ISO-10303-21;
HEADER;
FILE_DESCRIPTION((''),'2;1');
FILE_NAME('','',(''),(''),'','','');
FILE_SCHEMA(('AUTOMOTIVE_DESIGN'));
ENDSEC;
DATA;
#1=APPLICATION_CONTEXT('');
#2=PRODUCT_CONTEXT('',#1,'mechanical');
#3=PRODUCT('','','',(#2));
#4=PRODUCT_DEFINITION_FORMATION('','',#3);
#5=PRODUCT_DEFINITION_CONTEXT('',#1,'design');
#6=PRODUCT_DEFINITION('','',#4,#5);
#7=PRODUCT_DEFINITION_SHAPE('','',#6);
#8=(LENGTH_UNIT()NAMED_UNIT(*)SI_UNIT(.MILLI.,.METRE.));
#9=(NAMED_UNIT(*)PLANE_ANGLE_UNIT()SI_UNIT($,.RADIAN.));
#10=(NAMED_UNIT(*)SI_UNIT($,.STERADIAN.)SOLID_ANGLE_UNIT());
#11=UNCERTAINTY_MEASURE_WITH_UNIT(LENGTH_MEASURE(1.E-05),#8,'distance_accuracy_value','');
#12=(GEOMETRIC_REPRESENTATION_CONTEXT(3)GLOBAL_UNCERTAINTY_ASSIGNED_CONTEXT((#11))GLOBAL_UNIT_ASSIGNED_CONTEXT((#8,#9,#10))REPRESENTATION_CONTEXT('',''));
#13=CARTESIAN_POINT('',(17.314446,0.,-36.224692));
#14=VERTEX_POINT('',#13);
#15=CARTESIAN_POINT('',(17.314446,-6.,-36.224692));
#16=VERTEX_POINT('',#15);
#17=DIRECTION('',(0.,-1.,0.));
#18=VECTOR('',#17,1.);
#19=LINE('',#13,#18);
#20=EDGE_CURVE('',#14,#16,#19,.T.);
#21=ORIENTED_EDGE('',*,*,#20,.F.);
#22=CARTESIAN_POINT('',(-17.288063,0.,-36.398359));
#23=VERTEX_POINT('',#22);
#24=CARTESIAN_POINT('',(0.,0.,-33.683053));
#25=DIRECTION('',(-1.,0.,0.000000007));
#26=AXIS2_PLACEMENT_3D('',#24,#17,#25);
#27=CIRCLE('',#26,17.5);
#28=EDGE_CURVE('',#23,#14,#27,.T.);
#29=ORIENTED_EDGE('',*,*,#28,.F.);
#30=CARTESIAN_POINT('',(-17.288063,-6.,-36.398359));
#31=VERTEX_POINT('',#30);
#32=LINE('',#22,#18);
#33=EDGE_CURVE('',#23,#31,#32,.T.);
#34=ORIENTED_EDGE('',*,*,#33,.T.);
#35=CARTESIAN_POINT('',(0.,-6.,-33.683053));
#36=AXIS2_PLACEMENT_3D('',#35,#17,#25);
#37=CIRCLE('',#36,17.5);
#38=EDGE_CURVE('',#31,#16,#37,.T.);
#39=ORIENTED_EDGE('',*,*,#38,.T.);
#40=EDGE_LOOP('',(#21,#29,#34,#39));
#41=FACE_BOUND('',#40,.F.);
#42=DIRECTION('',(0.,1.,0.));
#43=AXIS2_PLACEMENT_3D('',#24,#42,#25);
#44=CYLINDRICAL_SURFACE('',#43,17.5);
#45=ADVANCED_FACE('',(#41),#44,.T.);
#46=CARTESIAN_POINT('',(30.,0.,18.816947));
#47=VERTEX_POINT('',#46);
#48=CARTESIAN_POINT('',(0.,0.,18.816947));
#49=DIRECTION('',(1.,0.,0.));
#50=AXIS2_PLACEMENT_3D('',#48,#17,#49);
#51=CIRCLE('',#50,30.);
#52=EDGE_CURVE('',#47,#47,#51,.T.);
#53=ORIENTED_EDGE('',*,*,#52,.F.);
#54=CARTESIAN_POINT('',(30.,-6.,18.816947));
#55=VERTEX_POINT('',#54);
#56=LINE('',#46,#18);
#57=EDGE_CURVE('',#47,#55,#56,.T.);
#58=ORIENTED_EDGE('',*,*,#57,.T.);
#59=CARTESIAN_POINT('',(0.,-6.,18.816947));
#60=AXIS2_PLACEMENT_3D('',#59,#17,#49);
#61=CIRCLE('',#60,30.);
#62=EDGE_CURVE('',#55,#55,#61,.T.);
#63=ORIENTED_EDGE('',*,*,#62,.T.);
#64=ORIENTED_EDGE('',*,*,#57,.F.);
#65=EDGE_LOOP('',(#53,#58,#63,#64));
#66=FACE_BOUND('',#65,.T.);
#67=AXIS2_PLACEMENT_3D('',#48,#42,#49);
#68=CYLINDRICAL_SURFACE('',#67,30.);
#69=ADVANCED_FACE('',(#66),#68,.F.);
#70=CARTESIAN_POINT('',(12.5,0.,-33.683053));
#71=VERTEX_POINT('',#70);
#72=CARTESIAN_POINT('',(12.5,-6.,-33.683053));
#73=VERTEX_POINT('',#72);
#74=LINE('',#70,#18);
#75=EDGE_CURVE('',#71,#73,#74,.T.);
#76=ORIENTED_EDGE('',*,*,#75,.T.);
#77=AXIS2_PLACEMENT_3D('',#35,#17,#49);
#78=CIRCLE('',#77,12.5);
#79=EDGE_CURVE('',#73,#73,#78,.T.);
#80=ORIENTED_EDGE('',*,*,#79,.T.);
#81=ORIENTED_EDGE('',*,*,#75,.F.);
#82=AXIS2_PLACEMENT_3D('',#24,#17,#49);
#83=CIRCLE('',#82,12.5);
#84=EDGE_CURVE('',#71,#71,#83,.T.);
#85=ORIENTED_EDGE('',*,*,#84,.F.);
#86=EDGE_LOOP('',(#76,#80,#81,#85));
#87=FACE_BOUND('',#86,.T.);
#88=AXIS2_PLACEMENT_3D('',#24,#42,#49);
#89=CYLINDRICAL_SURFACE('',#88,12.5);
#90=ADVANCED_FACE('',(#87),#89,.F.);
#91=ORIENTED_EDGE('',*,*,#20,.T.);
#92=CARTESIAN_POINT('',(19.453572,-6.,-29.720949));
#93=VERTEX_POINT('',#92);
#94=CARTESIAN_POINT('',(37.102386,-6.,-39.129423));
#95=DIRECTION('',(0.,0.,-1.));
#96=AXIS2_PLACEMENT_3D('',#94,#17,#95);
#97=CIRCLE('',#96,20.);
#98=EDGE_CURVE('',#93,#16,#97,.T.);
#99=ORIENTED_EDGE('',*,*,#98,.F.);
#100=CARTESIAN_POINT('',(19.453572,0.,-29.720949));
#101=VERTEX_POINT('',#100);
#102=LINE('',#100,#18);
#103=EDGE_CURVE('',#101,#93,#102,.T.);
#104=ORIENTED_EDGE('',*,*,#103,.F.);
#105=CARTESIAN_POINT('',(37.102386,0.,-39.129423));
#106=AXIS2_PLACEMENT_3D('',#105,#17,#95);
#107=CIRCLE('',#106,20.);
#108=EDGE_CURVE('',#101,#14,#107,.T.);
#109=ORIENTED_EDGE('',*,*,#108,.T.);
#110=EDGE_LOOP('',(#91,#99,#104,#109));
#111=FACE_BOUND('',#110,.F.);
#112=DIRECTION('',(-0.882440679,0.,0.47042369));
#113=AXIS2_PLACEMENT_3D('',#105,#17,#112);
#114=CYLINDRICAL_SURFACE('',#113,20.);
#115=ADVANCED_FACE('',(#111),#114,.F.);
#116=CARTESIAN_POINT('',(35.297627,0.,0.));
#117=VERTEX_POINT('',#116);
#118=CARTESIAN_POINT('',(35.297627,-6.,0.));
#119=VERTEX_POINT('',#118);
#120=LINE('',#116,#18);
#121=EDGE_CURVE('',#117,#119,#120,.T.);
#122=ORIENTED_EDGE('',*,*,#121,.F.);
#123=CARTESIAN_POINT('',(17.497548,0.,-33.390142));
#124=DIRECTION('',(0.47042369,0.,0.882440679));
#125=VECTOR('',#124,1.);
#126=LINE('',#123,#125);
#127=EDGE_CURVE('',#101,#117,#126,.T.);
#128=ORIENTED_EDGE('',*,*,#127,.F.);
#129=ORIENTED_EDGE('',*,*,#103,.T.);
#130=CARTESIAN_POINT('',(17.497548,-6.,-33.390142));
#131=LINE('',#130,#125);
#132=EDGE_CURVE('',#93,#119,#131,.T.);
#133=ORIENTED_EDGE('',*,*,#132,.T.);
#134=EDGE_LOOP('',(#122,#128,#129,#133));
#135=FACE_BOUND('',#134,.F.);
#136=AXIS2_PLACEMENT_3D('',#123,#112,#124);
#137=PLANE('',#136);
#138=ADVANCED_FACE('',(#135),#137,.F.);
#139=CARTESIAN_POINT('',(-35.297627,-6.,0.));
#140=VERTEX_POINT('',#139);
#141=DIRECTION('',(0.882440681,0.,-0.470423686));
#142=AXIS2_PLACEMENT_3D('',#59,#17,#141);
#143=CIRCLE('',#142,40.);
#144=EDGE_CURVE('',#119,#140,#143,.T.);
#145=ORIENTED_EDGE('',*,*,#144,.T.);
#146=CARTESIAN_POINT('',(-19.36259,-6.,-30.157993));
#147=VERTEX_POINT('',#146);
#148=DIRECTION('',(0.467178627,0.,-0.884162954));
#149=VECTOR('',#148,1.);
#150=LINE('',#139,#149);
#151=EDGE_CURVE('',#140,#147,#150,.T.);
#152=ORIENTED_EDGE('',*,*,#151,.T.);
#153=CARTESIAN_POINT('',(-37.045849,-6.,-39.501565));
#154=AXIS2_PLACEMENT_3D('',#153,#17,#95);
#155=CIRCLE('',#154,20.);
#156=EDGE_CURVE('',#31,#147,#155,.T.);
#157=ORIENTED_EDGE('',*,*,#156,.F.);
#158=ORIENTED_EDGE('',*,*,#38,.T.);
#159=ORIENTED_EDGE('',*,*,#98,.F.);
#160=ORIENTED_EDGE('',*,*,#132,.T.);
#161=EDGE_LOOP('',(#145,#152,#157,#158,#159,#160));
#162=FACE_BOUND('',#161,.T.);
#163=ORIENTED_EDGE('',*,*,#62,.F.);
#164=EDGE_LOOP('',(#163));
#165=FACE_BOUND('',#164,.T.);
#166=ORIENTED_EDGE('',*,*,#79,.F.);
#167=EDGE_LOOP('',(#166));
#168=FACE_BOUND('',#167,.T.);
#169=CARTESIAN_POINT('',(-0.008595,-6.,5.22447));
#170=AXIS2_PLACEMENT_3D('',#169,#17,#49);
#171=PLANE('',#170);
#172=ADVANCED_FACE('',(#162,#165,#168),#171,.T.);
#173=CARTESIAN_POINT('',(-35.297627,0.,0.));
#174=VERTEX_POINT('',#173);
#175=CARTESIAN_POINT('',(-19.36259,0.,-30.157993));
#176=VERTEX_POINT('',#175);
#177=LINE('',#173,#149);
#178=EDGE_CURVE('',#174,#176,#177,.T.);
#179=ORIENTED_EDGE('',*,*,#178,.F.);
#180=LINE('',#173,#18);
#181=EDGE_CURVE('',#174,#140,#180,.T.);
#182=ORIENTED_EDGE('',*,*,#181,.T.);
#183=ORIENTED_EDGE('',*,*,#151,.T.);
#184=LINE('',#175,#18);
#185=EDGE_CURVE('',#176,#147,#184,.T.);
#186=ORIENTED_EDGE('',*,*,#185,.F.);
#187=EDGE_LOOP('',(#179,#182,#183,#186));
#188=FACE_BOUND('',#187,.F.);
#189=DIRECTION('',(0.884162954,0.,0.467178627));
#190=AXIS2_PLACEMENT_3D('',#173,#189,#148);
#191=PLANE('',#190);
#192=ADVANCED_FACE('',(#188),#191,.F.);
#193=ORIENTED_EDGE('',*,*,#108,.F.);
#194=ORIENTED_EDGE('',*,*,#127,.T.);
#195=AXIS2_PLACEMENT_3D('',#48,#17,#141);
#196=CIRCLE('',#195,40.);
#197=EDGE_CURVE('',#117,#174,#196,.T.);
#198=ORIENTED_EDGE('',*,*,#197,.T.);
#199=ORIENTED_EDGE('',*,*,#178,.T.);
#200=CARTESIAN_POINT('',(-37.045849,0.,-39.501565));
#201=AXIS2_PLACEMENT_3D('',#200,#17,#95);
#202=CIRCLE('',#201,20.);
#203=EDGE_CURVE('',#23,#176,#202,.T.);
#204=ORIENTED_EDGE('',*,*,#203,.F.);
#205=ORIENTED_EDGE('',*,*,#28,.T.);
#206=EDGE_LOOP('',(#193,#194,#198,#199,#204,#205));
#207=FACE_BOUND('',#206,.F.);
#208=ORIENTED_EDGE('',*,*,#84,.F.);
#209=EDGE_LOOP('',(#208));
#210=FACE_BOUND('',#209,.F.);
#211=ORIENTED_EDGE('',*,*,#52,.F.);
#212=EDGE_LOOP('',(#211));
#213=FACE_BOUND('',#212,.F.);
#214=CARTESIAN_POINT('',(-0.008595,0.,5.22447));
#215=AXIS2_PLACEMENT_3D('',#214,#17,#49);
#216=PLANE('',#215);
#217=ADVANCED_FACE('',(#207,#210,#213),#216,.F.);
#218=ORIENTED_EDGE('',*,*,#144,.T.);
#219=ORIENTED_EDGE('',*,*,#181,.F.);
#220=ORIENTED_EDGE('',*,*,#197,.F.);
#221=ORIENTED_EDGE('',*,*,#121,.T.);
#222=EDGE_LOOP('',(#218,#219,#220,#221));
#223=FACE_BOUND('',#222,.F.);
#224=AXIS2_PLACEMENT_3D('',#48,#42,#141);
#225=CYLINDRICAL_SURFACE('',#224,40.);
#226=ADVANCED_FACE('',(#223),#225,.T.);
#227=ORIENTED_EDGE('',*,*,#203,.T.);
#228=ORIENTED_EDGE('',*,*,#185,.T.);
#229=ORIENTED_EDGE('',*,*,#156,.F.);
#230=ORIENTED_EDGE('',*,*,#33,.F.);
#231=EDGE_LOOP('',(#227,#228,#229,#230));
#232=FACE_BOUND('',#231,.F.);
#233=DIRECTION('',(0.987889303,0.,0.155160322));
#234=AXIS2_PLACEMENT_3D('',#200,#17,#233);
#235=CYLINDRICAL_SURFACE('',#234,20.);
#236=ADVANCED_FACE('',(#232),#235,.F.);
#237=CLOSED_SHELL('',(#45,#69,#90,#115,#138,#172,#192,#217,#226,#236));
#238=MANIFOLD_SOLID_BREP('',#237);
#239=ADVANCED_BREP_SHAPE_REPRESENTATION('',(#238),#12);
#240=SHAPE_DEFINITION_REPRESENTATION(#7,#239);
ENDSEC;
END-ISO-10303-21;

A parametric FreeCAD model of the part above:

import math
import FreeCAD as App
import Part
import Sketcher
Q = App.Units.Quantity


def edges_at(feature, points):
    """Names of the edges that pass closest to the given points."""
    edges = feature.Shape.Edges
    near = lambda p: min(range(len(edges)), key=lambda i: edges[i].distToShape(Part.Vertex(*p))[0])
    return sorted({f"Edge{near(p) + 1}" for p in points})

doc = App.newDocument("Part")
body = doc.addObject("PartDesign::Body", "Body")

# Sketch on XZ plane
sketch1 = doc.addObject("Sketcher::SketchObject", "Sketch")
body.addObject(sketch1)
sketch1.AttachmentSupport = (doc.XZ_Plane, [""])
sketch1.MapMode = "FlatFace"
sketch1.addGeometry([
    Part.LineSegment(App.Vector(17, -33, 0), App.Vector(35, 0, 0)),  # 0
    Part.ArcOfCircle(Part.Circle(App.Vector(0, 19, 0), App.Vector(0, 0, 1), 40), math.radians(-28), math.radians(208)),  # 1
    Part.LineSegment(App.Vector(-35, 0, 0), App.Vector(-18, -34, 0)),  # 2
    Part.ArcOfCircle(Part.Circle(App.Vector(0, -34, 0), App.Vector(0, 0, 1), 17), math.radians(180), math.radians(361)),  # 3
    Part.Circle(App.Vector(0, -34, 0), App.Vector(0, 0, 1), 12),  # 4
    Part.Circle(App.Vector(0, 19, 0), App.Vector(0, 0, 1), 30),  # 5
], False)
sketch1.addConstraint([
    Sketcher.Constraint("Tangent", 0, 2, 1, 1),
    Sketcher.Constraint("Coincident", 1, 2, 2, 1),
    Sketcher.Constraint("Coincident", 2, 2, 3, 1),
    Sketcher.Constraint("Coincident", 3, 2, 0, 1),
    Sketcher.Constraint("Coincident", 4, 3, 3, 3),
    Sketcher.Constraint("Coincident", 5, 3, 1, 3),
    Sketcher.Constraint("Symmetric", 0, 2, 1, 2, -1, 1),
    Sketcher.Constraint("PointOnObject", 1, 3, -2),
    Sketcher.Constraint("PointOnObject", 3, 3, -2),
    Sketcher.Constraint("Horizontal", 4, 3, 2, 2),
    Sketcher.Constraint("Diameter", 4, Q("25 mm")),
    Sketcher.Constraint("Diameter", 5, Q("60 mm")),
    Sketcher.Constraint("Radius", 1, Q("40 mm")),
    Sketcher.Constraint("Radius", 3, Q("17.5 mm")),
    Sketcher.Constraint("DistanceY", 3, 3, 1, 3, Q("52.5 mm")),
    Sketcher.Constraint("Distance", 0, Q("37.838398 mm")),
])
pad1 = doc.addObject("PartDesign::Pad", "Pad")
body.addObject(pad1)
pad1.Profile = sketch1
pad1.Length = 6
doc.recompute()

fillet = doc.addObject("PartDesign::Fillet", "Fillet")
body.addObject(fillet)
fillet.Base = (pad1, edges_at(pad1, [(17.498, -3, -33.39), (-17.5, -3, -33.683)]))
fillet.Radius = 20

doc.recompute()
